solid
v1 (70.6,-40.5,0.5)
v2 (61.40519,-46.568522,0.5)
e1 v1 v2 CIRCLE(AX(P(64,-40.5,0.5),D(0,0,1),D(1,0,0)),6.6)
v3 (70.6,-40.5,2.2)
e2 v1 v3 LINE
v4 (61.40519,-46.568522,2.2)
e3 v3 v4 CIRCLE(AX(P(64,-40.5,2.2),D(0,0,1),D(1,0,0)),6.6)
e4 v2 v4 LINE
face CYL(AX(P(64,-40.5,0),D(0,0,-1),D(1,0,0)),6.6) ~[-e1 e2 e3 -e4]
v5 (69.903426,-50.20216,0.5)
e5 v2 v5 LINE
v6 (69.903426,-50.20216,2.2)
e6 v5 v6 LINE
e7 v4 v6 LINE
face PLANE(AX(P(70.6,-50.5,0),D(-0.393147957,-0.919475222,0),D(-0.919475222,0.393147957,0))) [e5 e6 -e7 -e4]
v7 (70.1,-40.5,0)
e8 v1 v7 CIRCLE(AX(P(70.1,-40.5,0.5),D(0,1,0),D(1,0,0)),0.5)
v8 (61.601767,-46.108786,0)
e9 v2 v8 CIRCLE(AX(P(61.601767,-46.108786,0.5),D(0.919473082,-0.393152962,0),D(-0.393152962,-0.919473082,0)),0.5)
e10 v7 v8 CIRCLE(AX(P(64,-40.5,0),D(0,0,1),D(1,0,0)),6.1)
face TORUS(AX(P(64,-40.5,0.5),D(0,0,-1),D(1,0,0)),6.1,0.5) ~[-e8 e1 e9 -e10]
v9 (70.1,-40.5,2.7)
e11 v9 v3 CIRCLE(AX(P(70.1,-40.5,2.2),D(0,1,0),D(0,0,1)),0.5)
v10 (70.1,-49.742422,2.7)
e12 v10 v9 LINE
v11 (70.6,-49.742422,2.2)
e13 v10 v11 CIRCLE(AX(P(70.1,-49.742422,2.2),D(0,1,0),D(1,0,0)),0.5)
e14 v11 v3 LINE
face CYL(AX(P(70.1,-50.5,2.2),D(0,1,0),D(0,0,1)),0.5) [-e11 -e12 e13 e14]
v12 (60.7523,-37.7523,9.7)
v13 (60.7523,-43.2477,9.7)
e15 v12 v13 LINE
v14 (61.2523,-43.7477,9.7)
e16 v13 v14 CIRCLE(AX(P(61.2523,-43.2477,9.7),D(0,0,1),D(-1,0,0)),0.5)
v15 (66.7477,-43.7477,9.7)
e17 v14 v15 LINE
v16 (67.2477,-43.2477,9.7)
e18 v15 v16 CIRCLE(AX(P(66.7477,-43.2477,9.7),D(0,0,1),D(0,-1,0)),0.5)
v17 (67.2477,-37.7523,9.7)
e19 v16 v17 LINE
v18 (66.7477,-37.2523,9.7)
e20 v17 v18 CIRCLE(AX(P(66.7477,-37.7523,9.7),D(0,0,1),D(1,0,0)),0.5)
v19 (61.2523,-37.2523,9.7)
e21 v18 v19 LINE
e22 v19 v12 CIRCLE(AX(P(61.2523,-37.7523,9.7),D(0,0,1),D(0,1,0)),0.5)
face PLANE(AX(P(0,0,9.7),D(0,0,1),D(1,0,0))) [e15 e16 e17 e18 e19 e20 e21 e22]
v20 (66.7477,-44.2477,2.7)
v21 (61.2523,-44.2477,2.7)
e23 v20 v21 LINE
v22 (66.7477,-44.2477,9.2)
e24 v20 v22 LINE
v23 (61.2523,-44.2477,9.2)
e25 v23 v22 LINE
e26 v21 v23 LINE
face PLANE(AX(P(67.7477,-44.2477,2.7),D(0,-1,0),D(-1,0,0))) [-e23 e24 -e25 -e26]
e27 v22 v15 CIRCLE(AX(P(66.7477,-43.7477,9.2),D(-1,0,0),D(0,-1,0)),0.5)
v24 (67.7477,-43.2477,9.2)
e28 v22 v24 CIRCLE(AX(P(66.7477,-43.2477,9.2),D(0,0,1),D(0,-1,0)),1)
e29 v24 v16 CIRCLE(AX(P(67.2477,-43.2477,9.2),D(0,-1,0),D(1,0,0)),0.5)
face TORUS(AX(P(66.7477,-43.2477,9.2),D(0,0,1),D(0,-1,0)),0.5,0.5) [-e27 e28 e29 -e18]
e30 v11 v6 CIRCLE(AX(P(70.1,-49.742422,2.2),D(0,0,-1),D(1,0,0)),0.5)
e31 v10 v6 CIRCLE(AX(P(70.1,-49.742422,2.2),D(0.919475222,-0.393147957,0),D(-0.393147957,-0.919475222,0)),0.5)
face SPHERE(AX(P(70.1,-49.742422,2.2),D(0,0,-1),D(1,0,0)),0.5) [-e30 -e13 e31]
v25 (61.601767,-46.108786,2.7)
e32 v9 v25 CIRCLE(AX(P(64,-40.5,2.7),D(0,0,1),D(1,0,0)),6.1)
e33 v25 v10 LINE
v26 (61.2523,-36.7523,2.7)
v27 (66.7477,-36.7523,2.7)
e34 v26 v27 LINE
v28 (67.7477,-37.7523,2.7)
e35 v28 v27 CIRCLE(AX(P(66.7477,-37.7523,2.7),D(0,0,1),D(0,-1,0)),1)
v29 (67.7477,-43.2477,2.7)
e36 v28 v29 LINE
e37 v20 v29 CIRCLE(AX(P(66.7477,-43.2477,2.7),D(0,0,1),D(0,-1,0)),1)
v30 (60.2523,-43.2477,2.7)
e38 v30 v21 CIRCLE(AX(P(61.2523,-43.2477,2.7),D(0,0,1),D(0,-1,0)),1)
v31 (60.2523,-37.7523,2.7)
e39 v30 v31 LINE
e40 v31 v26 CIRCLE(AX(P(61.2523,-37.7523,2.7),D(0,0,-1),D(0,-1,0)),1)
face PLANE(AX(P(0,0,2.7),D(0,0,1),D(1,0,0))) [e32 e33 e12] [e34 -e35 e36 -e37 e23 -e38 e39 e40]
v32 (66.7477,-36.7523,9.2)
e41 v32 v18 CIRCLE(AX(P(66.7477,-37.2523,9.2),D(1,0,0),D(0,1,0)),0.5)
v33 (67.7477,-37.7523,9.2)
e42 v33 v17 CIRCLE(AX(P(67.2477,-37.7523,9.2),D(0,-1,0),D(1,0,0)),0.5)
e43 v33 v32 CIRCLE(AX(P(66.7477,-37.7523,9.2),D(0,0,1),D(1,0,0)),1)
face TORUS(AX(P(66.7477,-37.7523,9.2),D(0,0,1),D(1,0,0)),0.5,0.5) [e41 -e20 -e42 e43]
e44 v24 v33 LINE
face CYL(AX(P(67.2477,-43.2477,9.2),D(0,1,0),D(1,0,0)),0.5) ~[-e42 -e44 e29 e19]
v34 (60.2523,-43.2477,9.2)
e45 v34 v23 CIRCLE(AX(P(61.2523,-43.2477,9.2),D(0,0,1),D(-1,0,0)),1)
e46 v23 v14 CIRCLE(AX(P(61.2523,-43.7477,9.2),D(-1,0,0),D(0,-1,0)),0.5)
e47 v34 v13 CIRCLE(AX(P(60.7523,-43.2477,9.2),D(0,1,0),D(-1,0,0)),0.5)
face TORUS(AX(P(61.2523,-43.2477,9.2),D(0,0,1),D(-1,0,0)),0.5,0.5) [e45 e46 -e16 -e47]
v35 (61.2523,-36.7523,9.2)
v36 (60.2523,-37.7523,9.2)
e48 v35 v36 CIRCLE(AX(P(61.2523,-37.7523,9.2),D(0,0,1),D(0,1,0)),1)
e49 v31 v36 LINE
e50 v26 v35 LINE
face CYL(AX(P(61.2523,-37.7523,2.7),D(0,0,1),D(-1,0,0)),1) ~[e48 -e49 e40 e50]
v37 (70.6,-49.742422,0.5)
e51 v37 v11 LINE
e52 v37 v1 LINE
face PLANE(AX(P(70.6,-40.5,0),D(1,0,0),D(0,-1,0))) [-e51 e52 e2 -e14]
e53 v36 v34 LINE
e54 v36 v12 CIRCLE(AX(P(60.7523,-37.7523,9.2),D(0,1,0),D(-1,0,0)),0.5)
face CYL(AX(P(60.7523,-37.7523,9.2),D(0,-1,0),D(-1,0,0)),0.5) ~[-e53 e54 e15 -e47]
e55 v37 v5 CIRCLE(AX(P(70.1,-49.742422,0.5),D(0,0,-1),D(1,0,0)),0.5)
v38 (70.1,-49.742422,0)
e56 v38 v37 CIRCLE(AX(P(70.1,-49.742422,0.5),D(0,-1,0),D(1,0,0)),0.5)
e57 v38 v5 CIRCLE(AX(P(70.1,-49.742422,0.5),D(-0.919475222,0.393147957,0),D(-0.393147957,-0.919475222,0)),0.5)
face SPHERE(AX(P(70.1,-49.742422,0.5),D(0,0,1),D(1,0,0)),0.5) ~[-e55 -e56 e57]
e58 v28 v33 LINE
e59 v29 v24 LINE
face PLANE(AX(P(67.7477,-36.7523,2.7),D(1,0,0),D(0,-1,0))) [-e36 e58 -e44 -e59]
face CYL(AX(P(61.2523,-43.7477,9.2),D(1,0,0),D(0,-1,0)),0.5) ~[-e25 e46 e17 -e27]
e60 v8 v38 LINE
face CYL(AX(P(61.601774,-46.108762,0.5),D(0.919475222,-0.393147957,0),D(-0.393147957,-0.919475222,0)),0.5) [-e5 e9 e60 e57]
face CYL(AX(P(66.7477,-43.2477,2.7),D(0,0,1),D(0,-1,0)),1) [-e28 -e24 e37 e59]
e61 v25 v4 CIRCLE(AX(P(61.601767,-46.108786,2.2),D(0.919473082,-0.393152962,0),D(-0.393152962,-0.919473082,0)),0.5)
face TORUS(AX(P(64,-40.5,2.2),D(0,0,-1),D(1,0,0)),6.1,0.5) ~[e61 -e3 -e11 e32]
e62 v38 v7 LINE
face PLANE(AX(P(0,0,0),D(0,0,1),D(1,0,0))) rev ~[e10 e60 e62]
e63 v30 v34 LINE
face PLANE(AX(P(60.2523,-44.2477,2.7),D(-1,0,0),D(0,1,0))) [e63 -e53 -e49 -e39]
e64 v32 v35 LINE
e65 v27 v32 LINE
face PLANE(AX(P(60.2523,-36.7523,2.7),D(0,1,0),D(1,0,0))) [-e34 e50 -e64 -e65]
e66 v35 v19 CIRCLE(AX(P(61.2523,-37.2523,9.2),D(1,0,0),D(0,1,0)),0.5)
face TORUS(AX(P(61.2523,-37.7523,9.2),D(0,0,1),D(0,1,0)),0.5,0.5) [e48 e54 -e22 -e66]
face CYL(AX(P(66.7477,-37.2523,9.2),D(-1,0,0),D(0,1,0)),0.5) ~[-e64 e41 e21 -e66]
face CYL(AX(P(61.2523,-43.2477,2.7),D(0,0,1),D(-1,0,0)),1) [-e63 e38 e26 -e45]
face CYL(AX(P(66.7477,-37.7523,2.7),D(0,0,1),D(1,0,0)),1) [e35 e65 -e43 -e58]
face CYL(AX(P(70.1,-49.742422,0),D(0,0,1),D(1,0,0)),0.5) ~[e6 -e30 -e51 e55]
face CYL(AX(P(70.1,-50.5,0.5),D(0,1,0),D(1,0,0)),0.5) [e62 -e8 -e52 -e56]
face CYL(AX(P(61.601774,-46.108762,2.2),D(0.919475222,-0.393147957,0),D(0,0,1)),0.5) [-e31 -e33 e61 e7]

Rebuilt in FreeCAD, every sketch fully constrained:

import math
import FreeCAD as App
import Part
import Sketcher
Q = App.Units.Quantity


def edges_at(feature, points):
    """Names of the edges that pass closest to the given points."""
    edges = feature.Shape.Edges
    near = lambda p: min(range(len(edges)), key=lambda i: edges[i].distToShape(Part.Vertex(*p))[0])
    return sorted({f"Edge{near(p) + 1}" for p in points})

doc = App.newDocument("Part")
body = doc.addObject("PartDesign::Body", "Body")

# Sketch on XY plane
sketch1 = body.newObject("Sketcher::SketchObject", "Sketch")
sketch1.AttachmentSupport = (doc.getObject("XY_Plane"), [""])
sketch1.MapMode = "FlatFace"
sketch1.addGeometry([
    Part.ArcOfCircle(Part.Circle(App.Vector(64, -40.5, 0), App.Vector(0, 0, 1), 6.6), math.radians(0), math.radians(246.849171)),
    Part.LineSegment(App.Vector(61.4052, -46.5685, 0), App.Vector(70.6, -50.5, 0)),
    Part.LineSegment(App.Vector(70.6, -50.5, 0), App.Vector(70.6, -40.5, 0)),
], False)
sketch1.addConstraint([
    Sketcher.Constraint("Tangent", 0, 2, 1, 1),
    Sketcher.Constraint("Coincident", 1, 2, 2, 1),
    Sketcher.Constraint("Tangent", 2, 2, 0, 1),
    Sketcher.Constraint("Vertical", 2),
    Sketcher.Constraint("DistanceY", 2, 1, 2, 2, Q("10 mm")),
    Sketcher.Constraint("Radius", 0, Q("6.6 mm")),
    Sketcher.Constraint("DistanceX", -1, 1, 0, 3, Q("64 mm")),
    Sketcher.Constraint("DistanceY", 0, 3, -1, 1, Q("40.5 mm")),
])
pad1 = body.newObject("PartDesign::Pad", "Pad")
pad1.Profile = sketch1
pad1.Length = 2.7

# Sketch on XY plane
sketch2 = body.newObject("Sketcher::SketchObject", "Sketch001")
sketch2.AttachmentSupport = (doc.getObject("XY_Plane"), [""])
sketch2.MapMode = "FlatFace"
sketch2.AttachmentOffset = App.Placement(App.Vector(0, 0, 2.7), App.Rotation())
sketch2.addGeometry([
    Part.LineSegment(App.Vector(67.7477, -36.7523, 0), App.Vector(60.2523, -36.7523, 0)),
    Part.LineSegment(App.Vector(60.2523, -36.7523, 0), App.Vector(60.2523, -44.2477, 0)),
    Part.LineSegment(App.Vector(60.2523, -44.2477, 0), App.Vector(67.7477, -44.2477, 0)),
    Part.LineSegment(App.Vector(67.7477, -44.2477, 0), App.Vector(67.7477, -36.7523, 0)),
], False)
sketch2.addConstraint([
    Sketcher.Constraint("Coincident", 0, 2, 1, 1),
    Sketcher.Constraint("Coincident", 1, 2, 2, 1),
    Sketcher.Constraint("Coincident", 2, 2, 3, 1),
    Sketcher.Constraint("Coincident", 3, 2, 0, 1),
    Sketcher.Constraint("Horizontal", 0),
    Sketcher.Constraint("Vertical", 1),
    Sketcher.Constraint("Horizontal", 2),
    Sketcher.Constraint("Vertical", 3),
    Sketcher.Constraint("Equal", 2, 1),
    Sketcher.Constraint("DistanceX", 0, 2, 0, 1, Q("7.4954 mm")),
    Sketcher.Constraint("DistanceX", -1, 1, 0, 2, Q("60.2523 mm")),
    Sketcher.Constraint("DistanceY", 0, 2, -1, 1, Q("36.7523 mm")),
])
pad2 = body.newObject("PartDesign::Pad", "Pad001")
pad2.Profile = sketch2
pad2.Length = 7
doc.recompute()

fillet = body.newObject("PartDesign::Fillet", "Fillet")
fillet.Base = (pad2, edges_at(pad2, [
    (60.252, -44.248, 6.2),
    (60.252, -36.752, 6.2),
    (67.748, -36.752, 6.2),
    (67.748, -44.248, 6.2),
]))
fillet.Radius = 1
doc.recompute()

fillet2 = body.newObject("PartDesign::Fillet", "Fillet001")
fillet2.Base = (fillet, edges_at(fillet, [
    (67.455, -43.955, 9.7),
    (67.748, -40.5, 9.7),
    (67.455, -37.045, 9.7),
    (64, -36.752, 9.7),
    (60.545, -37.045, 9.7),
    (60.252, -40.5, 9.7),
    (60.545, -43.955, 9.7),
    (64, -44.248, 9.7),
]))
fillet2.Radius = 0.5
doc.recompute()

fillet3 = body.newObject("PartDesign::Fillet", "Fillet002")
fillet3.Base = (fillet2, edges_at(fillet2, [
    (60.364, -34.992, 2.7),
    (70.6, -45.5, 2.7),
    (66.003, -48.534, 2.7),
    (60.364, -34.992, 0),
    (70.6, -45.5, 0),
    (66.003, -48.534, 0),
    (70.6, -50.5, 1.35),
]))
fillet3.Radius = 0.5

doc.recompute()
